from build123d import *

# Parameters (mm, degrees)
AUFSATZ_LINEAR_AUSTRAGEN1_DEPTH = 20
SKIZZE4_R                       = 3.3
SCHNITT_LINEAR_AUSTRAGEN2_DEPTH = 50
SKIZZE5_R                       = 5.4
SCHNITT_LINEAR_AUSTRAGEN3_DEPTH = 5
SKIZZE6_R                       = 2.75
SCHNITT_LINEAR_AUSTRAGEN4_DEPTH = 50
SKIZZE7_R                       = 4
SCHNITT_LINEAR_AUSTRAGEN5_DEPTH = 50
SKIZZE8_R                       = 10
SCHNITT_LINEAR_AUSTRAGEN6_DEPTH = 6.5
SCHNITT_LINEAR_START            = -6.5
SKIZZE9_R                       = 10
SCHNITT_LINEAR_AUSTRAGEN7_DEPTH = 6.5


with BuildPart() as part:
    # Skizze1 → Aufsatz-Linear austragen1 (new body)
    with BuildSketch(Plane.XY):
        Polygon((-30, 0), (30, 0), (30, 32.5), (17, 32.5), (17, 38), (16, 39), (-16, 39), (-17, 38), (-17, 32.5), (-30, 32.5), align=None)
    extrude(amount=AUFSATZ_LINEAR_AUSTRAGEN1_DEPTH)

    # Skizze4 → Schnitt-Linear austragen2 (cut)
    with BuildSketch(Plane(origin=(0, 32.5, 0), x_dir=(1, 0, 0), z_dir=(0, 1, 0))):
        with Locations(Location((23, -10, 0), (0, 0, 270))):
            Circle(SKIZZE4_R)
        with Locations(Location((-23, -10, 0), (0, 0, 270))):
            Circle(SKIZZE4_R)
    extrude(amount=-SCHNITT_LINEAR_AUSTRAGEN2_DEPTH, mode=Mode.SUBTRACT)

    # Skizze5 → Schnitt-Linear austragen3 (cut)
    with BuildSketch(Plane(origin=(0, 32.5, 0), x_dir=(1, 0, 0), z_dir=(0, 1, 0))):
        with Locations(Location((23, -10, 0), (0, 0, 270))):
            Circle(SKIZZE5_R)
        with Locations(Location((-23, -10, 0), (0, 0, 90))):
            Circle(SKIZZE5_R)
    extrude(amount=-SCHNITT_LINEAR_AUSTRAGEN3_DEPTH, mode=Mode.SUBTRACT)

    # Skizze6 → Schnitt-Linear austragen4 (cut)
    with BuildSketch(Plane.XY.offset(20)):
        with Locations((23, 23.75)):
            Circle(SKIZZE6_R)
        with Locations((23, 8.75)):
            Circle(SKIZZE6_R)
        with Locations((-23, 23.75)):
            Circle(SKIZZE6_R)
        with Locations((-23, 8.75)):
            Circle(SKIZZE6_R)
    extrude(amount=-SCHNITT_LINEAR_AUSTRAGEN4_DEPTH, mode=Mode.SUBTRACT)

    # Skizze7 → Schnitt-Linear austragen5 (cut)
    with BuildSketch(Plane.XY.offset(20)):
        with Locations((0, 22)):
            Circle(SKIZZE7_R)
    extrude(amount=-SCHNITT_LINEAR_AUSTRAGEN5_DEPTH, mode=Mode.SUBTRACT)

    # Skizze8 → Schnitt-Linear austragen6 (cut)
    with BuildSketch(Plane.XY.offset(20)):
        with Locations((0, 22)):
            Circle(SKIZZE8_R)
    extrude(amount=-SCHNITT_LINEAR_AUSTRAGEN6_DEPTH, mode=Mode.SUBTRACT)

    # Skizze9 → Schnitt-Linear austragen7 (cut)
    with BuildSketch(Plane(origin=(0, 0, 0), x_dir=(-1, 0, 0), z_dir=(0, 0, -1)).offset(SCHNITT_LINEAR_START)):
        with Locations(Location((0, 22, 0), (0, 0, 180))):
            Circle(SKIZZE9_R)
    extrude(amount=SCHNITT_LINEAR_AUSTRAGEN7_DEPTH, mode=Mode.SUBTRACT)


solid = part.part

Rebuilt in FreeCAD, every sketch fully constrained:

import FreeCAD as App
import Part
import Sketcher
Q = App.Units.Quantity


def add_polygon(sketch, points):
    """Adds a closed chain of lines whose ends are joined by coincident constraints."""
    first, n = sketch.GeometryCount, len(points)
    for a, b in zip(points, points[1:] + points[:1]):
        sketch.addGeometry(Part.LineSegment(App.Vector(*a, 0), App.Vector(*b, 0)), False)
    for i in range(n):
        sketch.addConstraint(Sketcher.Constraint("Coincident", first + i, 2, first + (i + 1) % n, 1))

doc = App.newDocument("Part")
params = doc.addObject("Spreadsheet::Sheet", "Params")
for row, (alias, value) in enumerate([
    ("sketch1_width", "60 mm"),
    ("sketch1_width2", "13 mm"),
    ("sketch1_width3", "32 mm"),
    ("sketch1_height", "32.5 mm"),
    ("sketch1_height2", "5.5 mm"),
    ("pad1_length", "20 mm"),
    ("sketch2_diameter", "6.6 mm"),
    ("pocket1_length", "50 mm"),
    ("sketch3_diameter", "10.8 mm"),
    ("pocket2_length", "5 mm"),
    ("sketch4_diameter", "5.5 mm"),
    ("pocket3_length", "50 mm"),
    ("sketch5_diameter", "8 mm"),
    ("pocket4_length", "50 mm"),
    ("sketch6_diameter", "20 mm"),
    ("pocket5_length", "6.5 mm"),
    ("sketch7_diameter", "20 mm"),
    ("pocket6_length", "6.5 mm"),
], start=1):
    params.set(f"A{row}", alias)
    params.set(f"B{row}", "=" + value)
    params.setAlias(f"B{row}", alias)

body = doc.addObject("PartDesign::Body", "Body")

# Sketch on XY plane
sketch1 = body.newObject("Sketcher::SketchObject", "Sketch")
sketch1.AttachmentSupport = (doc.getObject("XY_Plane"), [""])
sketch1.MapMode = "FlatFace"
add_polygon(sketch1, [(-30, 0), (30, 0), (30, 32.5), (17, 32.5), (17, 38), (16, 39), (-16, 39), (-17, 38), (-17, 32.5), (-30, 32.5)])  # lines 0-9
sketch1.addConstraint([
    Sketcher.Constraint("Horizontal", 0),
    Sketcher.Constraint("Vertical", 1),
    Sketcher.Constraint("Horizontal", 2),
    Sketcher.Constraint("Vertical", 3),
    Sketcher.Constraint("Horizontal", 5),
    Sketcher.Constraint("Vertical", 7),
    Sketcher.Constraint("Horizontal", 8),
    Sketcher.Constraint("Vertical", 9),
    Sketcher.Constraint("Symmetric", 0, 2, 9, 2, -1, 1),
    Sketcher.Constraint("Symmetric", 3, 2, 6, 2, -2),
    Sketcher.Constraint("Perpendicular", 4, 6),
    Sketcher.Constraint("Horizontal", 2, 2, 7, 2),
    Sketcher.Constraint("Equal", 4, 6),
    Sketcher.Constraint("DistanceX", 0, 1, 0, 2, Q("60 mm")),
    Sketcher.Constraint("DistanceX", 2, 2, 2, 1, Q("13 mm")),
    Sketcher.Constraint("DistanceX", 5, 2, 5, 1, Q("32 mm")),
    Sketcher.Constraint("DistanceY", 1, 1, 1, 2, Q("32.5 mm")),
    Sketcher.Constraint("DistanceY", 3, 1, 3, 2, Q("5.5 mm")),
])
sketch1.setExpression("Constraints[23]", "Params.sketch1_width")
sketch1.setExpression("Constraints[24]", "Params.sketch1_width2")
sketch1.setExpression("Constraints[25]", "Params.sketch1_width3")
sketch1.setExpression("Constraints[26]", "Params.sketch1_height")
sketch1.setExpression("Constraints[27]", "Params.sketch1_height2")
pad1 = body.newObject("PartDesign::Pad", "Pad")
pad1.Profile = sketch1
pad1.setExpression("Length", "Params.pad1_length")

# Sketch on XZ plane
sketch2 = body.newObject("Sketcher::SketchObject", "Sketch001")
sketch2.AttachmentSupport = (doc.getObject("XZ_Plane"), [""])
sketch2.MapMode = "FlatFace"
sketch2.AttachmentOffset = App.Placement(App.Vector(0, 0, -32.5), App.Rotation())
sketch2.addGeometry([
    Part.Circle(App.Vector(23, 10, 0), App.Vector(0, 0, 1), 3.3),
    Part.Circle(App.Vector(-23, 10, 0), App.Vector(0, 0, 1), 3.3),
], False)
sketch2.addConstraint([
    Sketcher.Constraint("Equal", 0, 1),
    Sketcher.Constraint("Symmetric", 0, 3, 1, 3, -2),
    Sketcher.Constraint("Diameter", 0, Q("6.6 mm")),
    Sketcher.Constraint("DistanceX", -1, 1, 0, 3, Q("23 mm")),
    Sketcher.Constraint("DistanceY", -1, 1, 0, 3, Q("10 mm")),
])
sketch2.setExpression("Constraints[2]", "Params.sketch2_diameter")
pocket1 = body.newObject("PartDesign::Pocket", "Pocket")
pocket1.Profile = sketch2
pocket1.setExpression("Length", "Params.pocket1_length")
pocket1.Reversed = True

# Sketch on XZ plane
sketch3 = body.newObject("Sketcher::SketchObject", "Sketch002")
sketch3.AttachmentSupport = (doc.getObject("XZ_Plane"), [""])
sketch3.MapMode = "FlatFace"
sketch3.AttachmentOffset = App.Placement(App.Vector(0, 0, -32.5), App.Rotation())
sketch3.addGeometry([
    Part.Circle(App.Vector(23, 10, 0), App.Vector(0, 0, 1), 5.4),
    Part.Circle(App.Vector(-23, 10, 0), App.Vector(0, 0, 1), 5.4),
], False)
sketch3.addConstraint([
    Sketcher.Constraint("Equal", 0, 1),
    Sketcher.Constraint("Symmetric", 0, 3, 1, 3, -2),
    Sketcher.Constraint("Diameter", 0, Q("10.8 mm")),
    Sketcher.Constraint("DistanceX", -1, 1, 0, 3, Q("23 mm")),
    Sketcher.Constraint("DistanceY", -1, 1, 0, 3, Q("10 mm")),
])
sketch3.setExpression("Constraints[2]", "Params.sketch3_diameter")
pocket2 = body.newObject("PartDesign::Pocket", "Pocket001")
pocket2.Profile = sketch3
pocket2.setExpression("Length", "Params.pocket2_length")
pocket2.Reversed = True

# Sketch on XY plane
sketch4 = body.newObject("Sketcher::SketchObject", "Sketch003")
sketch4.AttachmentSupport = (doc.getObject("XY_Plane"), [""])
sketch4.MapMode = "FlatFace"
sketch4.AttachmentOffset = App.Placement(App.Vector(0, 0, 20), App.Rotation())
sketch4.addGeometry([
    Part.Circle(App.Vector(23, 23.75, 0), App.Vector(0, 0, 1), 2.75),
    Part.Circle(App.Vector(23, 8.75, 0), App.Vector(0, 0, 1), 2.75),
    Part.Circle(App.Vector(-23, 23.75, 0), App.Vector(0, 0, 1), 2.75),
    Part.Circle(App.Vector(-23, 8.75, 0), App.Vector(0, 0, 1), 2.75),
], False)
sketch4.addConstraint([
    Sketcher.Constraint("Equal", 0, 1),
    Sketcher.Constraint("Equal", 1, 2),
    Sketcher.Constraint("Equal", 2, 3),
    Sketcher.Constraint("Symmetric", 0, 3, 2, 3, -2),
    Sketcher.Constraint("Symmetric", 1, 3, 3, 3, -2),
    Sketcher.Constraint("Vertical", 0, 3, 1, 3),
    Sketcher.Constraint("Diameter", 0, Q("5.5 mm")),
    Sketcher.Constraint("DistanceX", -1, 1, 0, 3, Q("23 mm")),
    Sketcher.Constraint("DistanceY", 1, 3, 0, 3, Q("15 mm")),
    Sketcher.Constraint("DistanceY", -1, 1, 0, 3, Q("23.75 mm")),
])
sketch4.setExpression("Constraints[6]", "Params.sketch4_diameter")
pocket3 = body.newObject("PartDesign::Pocket", "Pocket002")
pocket3.Profile = sketch4
pocket3.setExpression("Length", "Params.pocket3_length")

# Sketch on XY plane
sketch5 = body.newObject("Sketcher::SketchObject", "Sketch004")
sketch5.AttachmentSupport = (doc.getObject("XY_Plane"), [""])
sketch5.MapMode = "FlatFace"
sketch5.AttachmentOffset = App.Placement(App.Vector(0, 0, 20), App.Rotation())
sketch5.addGeometry(Part.Circle(App.Vector(0, 22, 0), App.Vector(0, 0, 1), 4), False)
sketch5.addConstraint([
    Sketcher.Constraint("PointOnObject", 0, 3, -2),
    Sketcher.Constraint("Diameter", 0, Q("8 mm")),
    Sketcher.Constraint("DistanceY", -1, 1, 0, 3, Q("22 mm")),
])
sketch5.setExpression("Constraints[1]", "Params.sketch5_diameter")
pocket4 = body.newObject("PartDesign::Pocket", "Pocket003")
pocket4.Profile = sketch5
pocket4.setExpression("Length", "Params.pocket4_length")

# Sketch on XY plane
sketch6 = body.newObject("Sketcher::SketchObject", "Sketch005")
sketch6.AttachmentSupport = (doc.getObject("XY_Plane"), [""])
sketch6.MapMode = "FlatFace"
sketch6.AttachmentOffset = App.Placement(App.Vector(0, 0, 20), App.Rotation())
sketch6.addGeometry(Part.Circle(App.Vector(0, 22, 0), App.Vector(0, 0, 1), 10), False)
sketch6.addConstraint([
    Sketcher.Constraint("PointOnObject", 0, 3, -2),
    Sketcher.Constraint("Diameter", 0, Q("20 mm")),
    Sketcher.Constraint("DistanceY", -1, 1, 0, 3, Q("22 mm")),
])
sketch6.setExpression("Constraints[1]", "Params.sketch6_diameter")
pocket5 = body.newObject("PartDesign::Pocket", "Pocket004")
pocket5.Profile = sketch6
pocket5.setExpression("Length", "Params.pocket5_length")

# Sketch on XY plane
sketch7 = body.newObject("Sketcher::SketchObject", "Sketch006")
sketch7.AttachmentSupport = (doc.getObject("XY_Plane"), [""])
sketch7.MapMode = "FlatFace"
sketch7.AttachmentOffset = App.Placement(App.Vector(0, 0, 6.5), App.Rotation())
sketch7.addGeometry(Part.Circle(App.Vector(0, 22, 0), App.Vector(0, 0, 1), 10), False)
sketch7.addConstraint([
    Sketcher.Constraint("PointOnObject", 0, 3, -2),
    Sketcher.Constraint("Diameter", 0, Q("20 mm")),
    Sketcher.Constraint("DistanceY", -1, 1, 0, 3, Q("22 mm")),
])
sketch7.setExpression("Constraints[1]", "Params.sketch7_diameter")
pocket6 = body.newObject("PartDesign::Pocket", "Pocket005")
pocket6.Profile = sketch7
pocket6.setExpression("Length", "Params.pocket6_length")

doc.recompute()
